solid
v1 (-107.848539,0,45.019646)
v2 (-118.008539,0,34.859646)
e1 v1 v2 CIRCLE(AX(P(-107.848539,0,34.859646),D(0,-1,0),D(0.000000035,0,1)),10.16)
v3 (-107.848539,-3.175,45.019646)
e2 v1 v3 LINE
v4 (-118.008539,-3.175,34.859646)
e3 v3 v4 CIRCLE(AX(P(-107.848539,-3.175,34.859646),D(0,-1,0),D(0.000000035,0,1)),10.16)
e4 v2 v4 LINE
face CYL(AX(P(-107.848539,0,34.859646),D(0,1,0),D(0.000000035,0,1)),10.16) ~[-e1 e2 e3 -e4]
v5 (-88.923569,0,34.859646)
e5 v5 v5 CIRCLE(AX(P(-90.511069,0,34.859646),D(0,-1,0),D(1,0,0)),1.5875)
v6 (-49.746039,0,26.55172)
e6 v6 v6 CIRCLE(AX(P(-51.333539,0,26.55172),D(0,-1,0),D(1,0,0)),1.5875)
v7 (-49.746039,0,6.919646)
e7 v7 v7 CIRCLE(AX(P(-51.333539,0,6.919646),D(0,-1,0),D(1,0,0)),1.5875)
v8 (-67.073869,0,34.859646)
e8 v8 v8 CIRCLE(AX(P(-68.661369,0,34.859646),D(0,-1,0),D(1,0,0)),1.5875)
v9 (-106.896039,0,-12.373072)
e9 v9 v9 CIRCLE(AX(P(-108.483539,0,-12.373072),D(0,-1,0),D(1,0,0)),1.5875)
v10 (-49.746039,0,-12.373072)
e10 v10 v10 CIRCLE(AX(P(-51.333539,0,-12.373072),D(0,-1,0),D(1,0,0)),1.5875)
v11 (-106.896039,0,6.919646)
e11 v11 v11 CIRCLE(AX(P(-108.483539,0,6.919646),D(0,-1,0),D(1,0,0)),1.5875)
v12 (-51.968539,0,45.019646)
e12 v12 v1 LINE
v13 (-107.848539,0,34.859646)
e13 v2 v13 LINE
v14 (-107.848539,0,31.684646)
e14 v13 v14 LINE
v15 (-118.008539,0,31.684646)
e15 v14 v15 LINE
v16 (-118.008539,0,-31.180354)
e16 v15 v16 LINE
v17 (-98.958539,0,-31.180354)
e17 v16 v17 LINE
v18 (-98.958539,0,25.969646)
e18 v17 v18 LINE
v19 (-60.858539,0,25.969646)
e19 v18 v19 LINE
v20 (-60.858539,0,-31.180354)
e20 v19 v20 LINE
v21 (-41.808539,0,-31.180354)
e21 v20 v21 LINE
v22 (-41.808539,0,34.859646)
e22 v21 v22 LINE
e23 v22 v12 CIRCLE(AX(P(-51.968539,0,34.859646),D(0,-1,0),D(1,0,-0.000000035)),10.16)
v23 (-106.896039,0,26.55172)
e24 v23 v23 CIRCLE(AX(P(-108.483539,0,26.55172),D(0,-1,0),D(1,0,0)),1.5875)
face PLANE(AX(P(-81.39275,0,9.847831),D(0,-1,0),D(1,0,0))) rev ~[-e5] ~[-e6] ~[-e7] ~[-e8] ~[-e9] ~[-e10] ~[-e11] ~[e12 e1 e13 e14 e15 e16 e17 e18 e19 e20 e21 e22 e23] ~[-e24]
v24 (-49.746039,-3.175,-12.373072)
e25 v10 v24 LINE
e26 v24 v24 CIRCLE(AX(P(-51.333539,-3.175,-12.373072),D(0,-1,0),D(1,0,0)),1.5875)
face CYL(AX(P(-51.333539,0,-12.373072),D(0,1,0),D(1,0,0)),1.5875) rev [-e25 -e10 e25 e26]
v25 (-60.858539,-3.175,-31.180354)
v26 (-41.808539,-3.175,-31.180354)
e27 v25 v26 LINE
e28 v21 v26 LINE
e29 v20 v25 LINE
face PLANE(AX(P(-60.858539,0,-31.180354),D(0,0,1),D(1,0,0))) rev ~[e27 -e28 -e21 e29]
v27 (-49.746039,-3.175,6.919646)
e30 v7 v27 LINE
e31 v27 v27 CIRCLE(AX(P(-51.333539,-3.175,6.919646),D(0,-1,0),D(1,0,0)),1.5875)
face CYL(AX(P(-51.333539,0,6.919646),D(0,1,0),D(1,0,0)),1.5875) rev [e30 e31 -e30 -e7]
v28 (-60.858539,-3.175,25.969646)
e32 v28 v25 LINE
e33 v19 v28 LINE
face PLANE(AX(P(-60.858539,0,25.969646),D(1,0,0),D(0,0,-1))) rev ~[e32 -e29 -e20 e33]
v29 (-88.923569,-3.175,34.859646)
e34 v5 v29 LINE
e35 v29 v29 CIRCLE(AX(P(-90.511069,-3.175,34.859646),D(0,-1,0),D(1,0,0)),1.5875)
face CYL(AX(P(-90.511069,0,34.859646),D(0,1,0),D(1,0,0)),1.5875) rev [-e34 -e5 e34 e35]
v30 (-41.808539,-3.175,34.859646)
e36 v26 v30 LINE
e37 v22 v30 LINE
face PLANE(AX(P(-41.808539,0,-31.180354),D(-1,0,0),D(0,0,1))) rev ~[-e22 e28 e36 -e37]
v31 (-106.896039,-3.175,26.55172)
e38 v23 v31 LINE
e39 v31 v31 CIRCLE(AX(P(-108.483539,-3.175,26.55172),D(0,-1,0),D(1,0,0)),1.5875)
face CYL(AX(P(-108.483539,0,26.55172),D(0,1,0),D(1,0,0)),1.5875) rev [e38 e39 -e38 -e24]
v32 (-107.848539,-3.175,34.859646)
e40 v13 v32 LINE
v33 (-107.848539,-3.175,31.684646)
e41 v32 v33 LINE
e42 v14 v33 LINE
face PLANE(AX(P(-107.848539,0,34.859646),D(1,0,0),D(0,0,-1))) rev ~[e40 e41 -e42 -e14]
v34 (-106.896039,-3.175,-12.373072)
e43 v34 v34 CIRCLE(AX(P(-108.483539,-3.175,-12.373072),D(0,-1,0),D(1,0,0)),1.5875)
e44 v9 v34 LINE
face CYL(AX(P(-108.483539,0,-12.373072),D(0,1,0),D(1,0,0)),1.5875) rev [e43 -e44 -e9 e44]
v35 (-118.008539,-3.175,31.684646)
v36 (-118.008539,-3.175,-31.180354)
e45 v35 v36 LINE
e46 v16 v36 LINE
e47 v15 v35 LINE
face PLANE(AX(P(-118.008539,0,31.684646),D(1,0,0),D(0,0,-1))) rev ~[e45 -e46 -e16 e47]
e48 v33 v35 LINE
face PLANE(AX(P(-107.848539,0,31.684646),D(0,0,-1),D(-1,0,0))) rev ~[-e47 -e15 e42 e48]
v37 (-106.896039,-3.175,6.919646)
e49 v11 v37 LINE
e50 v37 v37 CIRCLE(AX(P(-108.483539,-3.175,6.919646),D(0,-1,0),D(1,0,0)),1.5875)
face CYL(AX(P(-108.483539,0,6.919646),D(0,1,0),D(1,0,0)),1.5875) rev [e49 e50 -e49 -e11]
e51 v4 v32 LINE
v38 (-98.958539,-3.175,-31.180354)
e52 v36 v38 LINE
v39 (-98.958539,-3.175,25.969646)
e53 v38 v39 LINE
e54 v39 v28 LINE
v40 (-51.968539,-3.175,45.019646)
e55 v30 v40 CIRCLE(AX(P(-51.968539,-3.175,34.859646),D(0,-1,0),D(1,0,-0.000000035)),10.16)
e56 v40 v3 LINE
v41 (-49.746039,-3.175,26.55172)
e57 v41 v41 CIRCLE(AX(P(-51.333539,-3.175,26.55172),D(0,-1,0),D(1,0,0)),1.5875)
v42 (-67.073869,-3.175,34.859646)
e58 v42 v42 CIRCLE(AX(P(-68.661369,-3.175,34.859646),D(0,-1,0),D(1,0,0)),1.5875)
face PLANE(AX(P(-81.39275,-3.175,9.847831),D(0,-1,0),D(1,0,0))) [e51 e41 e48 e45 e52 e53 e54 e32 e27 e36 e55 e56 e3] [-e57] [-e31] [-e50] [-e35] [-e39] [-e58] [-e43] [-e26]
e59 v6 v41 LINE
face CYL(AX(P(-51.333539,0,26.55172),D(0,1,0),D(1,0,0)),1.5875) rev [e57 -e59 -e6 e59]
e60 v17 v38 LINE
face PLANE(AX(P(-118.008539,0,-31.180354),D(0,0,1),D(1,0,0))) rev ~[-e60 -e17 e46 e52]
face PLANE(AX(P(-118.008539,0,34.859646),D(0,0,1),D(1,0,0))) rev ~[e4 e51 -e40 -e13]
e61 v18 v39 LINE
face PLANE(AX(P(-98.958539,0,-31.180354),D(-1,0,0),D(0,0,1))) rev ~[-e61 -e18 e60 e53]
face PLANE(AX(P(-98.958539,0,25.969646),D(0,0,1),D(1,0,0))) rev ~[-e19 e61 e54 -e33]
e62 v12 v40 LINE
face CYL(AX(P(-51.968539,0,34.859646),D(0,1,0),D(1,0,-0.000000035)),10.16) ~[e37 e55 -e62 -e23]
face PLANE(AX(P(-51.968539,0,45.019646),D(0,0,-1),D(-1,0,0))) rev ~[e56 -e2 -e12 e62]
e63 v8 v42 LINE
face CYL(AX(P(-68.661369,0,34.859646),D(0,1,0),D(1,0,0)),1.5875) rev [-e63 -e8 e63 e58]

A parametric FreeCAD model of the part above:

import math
import FreeCAD as App
import Part
import Sketcher
Q = App.Units.Quantity

doc = App.newDocument("Part")
body = doc.addObject("PartDesign::Body", "Body")

# Sketch on XZ plane
sketch1 = body.newObject("Sketcher::SketchObject", "Sketch")
sketch1.AttachmentSupport = (doc.getObject("XZ_Plane"), [""])
sketch1.MapMode = "FlatFace"
sketch1.addGeometry(Part.LineSegment(App.Vector(-60.9, 26, 0), App.Vector(-60.9, -31.2, 0)), False)
sketch1.addGeometry(Part.LineSegment(App.Vector(-60.9, -31.2, 0), App.Vector(-41.8, -31.2, 0)), False)
sketch1.addGeometry(Part.LineSegment(App.Vector(-41.8, -31.2, 0), App.Vector(-41.8, 34.9, 0)), False)
sketch1.addGeometry(Part.ArcOfCircle(Part.Circle(App.Vector(-52, 34.9, 0), App.Vector(0, 0, 1), 10.2), math.radians(0), math.radians(90)), False)
sketch1.addGeometry(Part.LineSegment(App.Vector(-52, 45, 0), App.Vector(-107.8, 45, 0)), False)
sketch1.addGeometry(Part.ArcOfCircle(Part.Circle(App.Vector(-107.8, 34.9, 0), App.Vector(0, 0, 1), 10.2), math.radians(90), math.radians(180)), False)
sketch1.addGeometry(Part.LineSegment(App.Vector(-118, 34.9, 0), App.Vector(-107.8, 34.9, 0)), False)
sketch1.addGeometry(Part.LineSegment(App.Vector(-107.8, 34.9, 0), App.Vector(-107.8, 31.7, 0)), False)
sketch1.addGeometry(Part.LineSegment(App.Vector(-107.8, 31.7, 0), App.Vector(-118, 31.7, 0)), False)
sketch1.addGeometry(Part.LineSegment(App.Vector(-118, 31.7, 0), App.Vector(-118, -31.2, 0)), False)
sketch1.addGeometry(Part.LineSegment(App.Vector(-118, -31.2, 0), App.Vector(-99, -31.2, 0)), False)
sketch1.addGeometry(Part.LineSegment(App.Vector(-99, -31.2, 0), App.Vector(-99, 26, 0)), False)
sketch1.addGeometry(Part.LineSegment(App.Vector(-99, 26, 0), App.Vector(-60.9, 26, 0)), False)
sketch1.addGeometry(Part.Circle(App.Vector(-108.5, -12.4, 0), App.Vector(0, 0, 1), 1.6), False)
sketch1.addGeometry(Part.Circle(App.Vector(-108.5, 6.9, 0), App.Vector(0, 0, 1), 1.6), False)
sketch1.addGeometry(Part.Circle(App.Vector(-51.3, -12.4, 0), App.Vector(0, 0, 1), 1.6), False)
sketch1.addGeometry(Part.Circle(App.Vector(-51.3, 6.9, 0), App.Vector(0, 0, 1), 1.6), False)
sketch1.addGeometry(Part.Circle(App.Vector(-108.5, 26.6, 0), App.Vector(0, 0, 1), 1.6), False)
sketch1.addGeometry(Part.Circle(App.Vector(-90.5, 34.9, 0), App.Vector(0, 0, 1), 1.6), False)
sketch1.addGeometry(Part.Circle(App.Vector(-68.7, 34.9, 0), App.Vector(0, 0, 1), 1.6), False)
sketch1.addGeometry(Part.Circle(App.Vector(-51.3, 26.6, 0), App.Vector(0, 0, 1), 1.6), False)
sketch1.addConstraint(Sketcher.Constraint("Coincident", 0, 2, 1, 1))
sketch1.addConstraint(Sketcher.Constraint("Coincident", 1, 2, 2, 1))
sketch1.addConstraint(Sketcher.Constraint("Tangent", 2, 2, 3, 1))
sketch1.addConstraint(Sketcher.Constraint("Tangent", 3, 2, 4, 1))
sketch1.addConstraint(Sketcher.Constraint("Tangent", 4, 2, 5, 1))
sketch1.addConstraint(Sketcher.Constraint("Coincident", 5, 2, 6, 1))
sketch1.addConstraint(Sketcher.Constraint("Coincident", 6, 2, 7, 1))
sketch1.addConstraint(Sketcher.Constraint("Coincident", 7, 2, 8, 1))
sketch1.addConstraint(Sketcher.Constraint("Coincident", 8, 2, 9, 1))
sketch1.addConstraint(Sketcher.Constraint("Coincident", 9, 2, 10, 1))
sketch1.addConstraint(Sketcher.Constraint("Coincident", 10, 2, 11, 1))
sketch1.addConstraint(Sketcher.Constraint("Coincident", 11, 2, 12, 1))
sketch1.addConstraint(Sketcher.Constraint("Coincident", 12, 2, 0, 1))
sketch1.addConstraint(Sketcher.Constraint("Vertical", 0))
sketch1.addConstraint(Sketcher.Constraint("Horizontal", 1))
sketch1.addConstraint(Sketcher.Constraint("Vertical", 2))
sketch1.addConstraint(Sketcher.Constraint("Horizontal", 4))
sketch1.addConstraint(Sketcher.Constraint("Horizontal", 6))
sketch1.addConstraint(Sketcher.Constraint("Vertical", 7))
sketch1.addConstraint(Sketcher.Constraint("Horizontal", 8))
sketch1.addConstraint(Sketcher.Constraint("Vertical", 9))
sketch1.addConstraint(Sketcher.Constraint("Horizontal", 10))
sketch1.addConstraint(Sketcher.Constraint("Vertical", 11))
sketch1.addConstraint(Sketcher.Constraint("Horizontal", 12))
sketch1.addConstraint(Sketcher.Constraint("Coincident", 6, 2, 5, 3))
sketch1.addConstraint(Sketcher.Constraint("Equal", 3, 5))
sketch1.addConstraint(Sketcher.Constraint("Equal", 13, 14))
sketch1.addConstraint(Sketcher.Constraint("Equal", 14, 15))
sketch1.addConstraint(Sketcher.Constraint("Equal", 15, 16))
sketch1.addConstraint(Sketcher.Constraint("Equal", 16, 17))
sketch1.addConstraint(Sketcher.Constraint("Equal", 17, 18))
sketch1.addConstraint(Sketcher.Constraint("Equal", 18, 19))
sketch1.addConstraint(Sketcher.Constraint("Equal", 19, 20))
sketch1.addConstraint(Sketcher.Constraint("Horizontal", 13, 3, 15, 3))
sketch1.addConstraint(Sketcher.Constraint("Horizontal", 14, 3, 16, 3))
sketch1.addConstraint(Sketcher.Constraint("Horizontal", 5, 3, 18, 3))
sketch1.addConstraint(Sketcher.Constraint("Horizontal", 18, 3, 19, 3))
sketch1.addConstraint(Sketcher.Constraint("Horizontal", 17, 3, 20, 3))
sketch1.addConstraint(Sketcher.Constraint("Horizontal", 1, 2, 9, 2))
sketch1.addConstraint(Sketcher.Constraint("Vertical", 13, 3, 14, 3))
sketch1.addConstraint(Sketcher.Constraint("Vertical", 15, 3, 16, 3))
sketch1.addConstraint(Sketcher.Constraint("Vertical", 14, 3, 17, 3))
sketch1.addConstraint(Sketcher.Constraint("Vertical", 16, 3, 20, 3))
sketch1.addConstraint(Sketcher.Constraint("Vertical", 5, 2, 8, 2))
sketch1.addConstraint(Sketcher.Constraint("Equal", 1, 10))
sketch1.addConstraint(Sketcher.Constraint("Radius", 3, Q("0.4 in")))
sketch1.addConstraint(Sketcher.Constraint("Diameter", 13, Q("0.125 in")))
sketch1.addConstraint(Sketcher.Constraint("DistanceX", 4, 2, 4, 1, Q("2.2 in")))
sketch1.addConstraint(Sketcher.Constraint("DistanceX", 12, 1, 12, 2, Q("1.5 in")))
sketch1.addConstraint(Sketcher.Constraint("DistanceY", 2, 1, 2, 2, Q("2.6 in")))
sketch1.addConstraint(Sketcher.Constraint("DistanceY", 0, 2, 0, 1, Q("2.25 in")))
sketch1.addConstraint(Sketcher.Constraint("DistanceY", 14, 3, 5, 3, Q("1.1 in")))
sketch1.addConstraint(Sketcher.Constraint("DistanceY", 7, 2, 7, 1, Q("0.125 in")))
sketch1.addConstraint(Sketcher.Constraint("DistanceX", 13, 3, 15, 3, Q("2.25 in")))
sketch1.addConstraint(Sketcher.Constraint("DistanceX", 13, 3, 5, 3, Q("0.025 in")))
sketch1.addConstraint(Sketcher.Constraint("DistanceX", 18, 3, 19, 3, 21.8497))
sketch1.addConstraint(Sketcher.Constraint("DistanceX", 3, 3, -1, 1, 51.968539))
sketch1.addConstraint(Sketcher.Constraint("DistanceY", -1, 1, 17, 3, 26.55172))
sketch1.addConstraint(Sketcher.Constraint("DistanceX", 18, 3, -1, 1, 90.511069))
sketch1.addConstraint(Sketcher.Constraint("DistanceY", 13, 3, 5, 3, 47.232718))
sketch1.addConstraint(Sketcher.Constraint("DistanceY", 13, 3, 17, 3, 38.924792))
pad1 = body.newObject("PartDesign::Pad", "Pad")
pad1.Profile = sketch1
pad1.Length = Q("0.125 in")

doc.recompute()
